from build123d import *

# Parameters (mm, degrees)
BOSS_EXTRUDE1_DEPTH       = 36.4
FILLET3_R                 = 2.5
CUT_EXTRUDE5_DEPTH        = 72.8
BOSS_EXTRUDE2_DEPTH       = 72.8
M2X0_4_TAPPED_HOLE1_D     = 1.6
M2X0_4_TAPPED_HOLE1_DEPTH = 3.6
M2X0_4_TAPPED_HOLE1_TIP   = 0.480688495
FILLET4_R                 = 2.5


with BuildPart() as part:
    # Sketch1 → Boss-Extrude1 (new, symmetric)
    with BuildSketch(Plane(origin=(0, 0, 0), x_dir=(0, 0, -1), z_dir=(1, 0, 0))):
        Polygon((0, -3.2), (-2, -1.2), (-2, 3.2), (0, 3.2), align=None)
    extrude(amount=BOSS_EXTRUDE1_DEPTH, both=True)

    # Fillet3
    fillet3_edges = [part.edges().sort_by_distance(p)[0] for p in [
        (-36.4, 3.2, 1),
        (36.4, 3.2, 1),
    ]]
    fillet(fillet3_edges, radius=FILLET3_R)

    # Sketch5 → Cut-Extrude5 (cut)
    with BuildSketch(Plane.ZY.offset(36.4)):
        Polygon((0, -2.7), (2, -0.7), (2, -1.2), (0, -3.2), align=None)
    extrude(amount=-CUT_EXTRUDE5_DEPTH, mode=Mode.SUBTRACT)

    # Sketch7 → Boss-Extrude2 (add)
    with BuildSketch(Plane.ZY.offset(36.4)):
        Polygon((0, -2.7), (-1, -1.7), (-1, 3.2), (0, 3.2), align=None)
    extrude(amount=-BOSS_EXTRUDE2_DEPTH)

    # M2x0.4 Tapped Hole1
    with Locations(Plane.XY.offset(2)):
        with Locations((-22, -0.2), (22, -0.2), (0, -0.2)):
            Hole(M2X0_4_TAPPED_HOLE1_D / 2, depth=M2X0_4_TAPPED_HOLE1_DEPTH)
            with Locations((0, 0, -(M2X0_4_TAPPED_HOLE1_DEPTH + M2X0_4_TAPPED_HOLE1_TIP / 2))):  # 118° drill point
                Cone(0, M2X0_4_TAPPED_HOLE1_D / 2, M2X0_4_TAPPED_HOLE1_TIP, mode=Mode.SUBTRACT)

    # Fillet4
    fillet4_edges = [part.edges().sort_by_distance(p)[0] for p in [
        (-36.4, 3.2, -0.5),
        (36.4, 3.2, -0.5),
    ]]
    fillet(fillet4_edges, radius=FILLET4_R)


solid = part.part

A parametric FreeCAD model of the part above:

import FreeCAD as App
import Part
import Sketcher

V = App.Vector
Q = App.Units.Quantity


def edges_at(feature, points):
    """Names of the edges that pass closest to the given points."""
    edges = feature.Shape.Edges
    near = lambda p: min(range(len(edges)), key=lambda i: edges[i].distToShape(Part.Vertex(*p))[0])
    return sorted({f"Edge{near(p) + 1}" for p in points})

doc = App.newDocument("Part")
body = doc.addObject("PartDesign::Body", "Body")

sketch1 = doc.addObject("Sketcher::SketchObject", "Sketch")
body.addObject(sketch1)
sketch1.AttachmentSupport = (doc.YZ_Plane, [""])
sketch1.MapMode = "FlatFace"
sketch1.addGeometry(Part.LineSegment(V(-1.2, 2, 0), V(-3.2, 0, 0)), False)
sketch1.addGeometry(Part.LineSegment(V(-3.2, 0, 0), V(3.2, 0, 0)), False)
sketch1.addGeometry(Part.LineSegment(V(3.2, 0, 0), V(3.2, 2, 0)), False)
sketch1.addGeometry(Part.LineSegment(V(3.2, 2, 0), V(-1.2, 2, 0)), False)
sketch1.addConstraint(Sketcher.Constraint("Coincident", 0, 2, 1, 1))
sketch1.addConstraint(Sketcher.Constraint("Coincident", 1, 2, 2, 1))
sketch1.addConstraint(Sketcher.Constraint("Coincident", 2, 2, 3, 1))
sketch1.addConstraint(Sketcher.Constraint("Coincident", 3, 2, 0, 1))
sketch1.addConstraint(Sketcher.Constraint("Horizontal", 1))
sketch1.addConstraint(Sketcher.Constraint("Vertical", 2))
sketch1.addConstraint(Sketcher.Constraint("Horizontal", 3))
sketch1.addConstraint(Sketcher.Constraint("Symmetric", 0, 2, 1, 2, -1, 1))
sketch1.addConstraint(Sketcher.Constraint("DistanceY", 2, 1, 2, 2, Q("2 mm")))
sketch1.addConstraint(Sketcher.Constraint("Angle", 0, Q("-135 deg")))
sketch1.addConstraint(Sketcher.Constraint("DistanceX", 1, 1, 1, 2, Q("6.4 mm")))
pad1 = doc.addObject("PartDesign::Pad", "Pad")
body.addObject(pad1)
pad1.Profile = sketch1
pad1.Length = 72.8
pad1.Midplane = True
doc.recompute()

fillet = doc.addObject("PartDesign::Fillet", "Fillet")
body.addObject(fillet)
fillet.Base = (pad1, edges_at(pad1, [(-36.4, 3.2, 1), (36.4, 3.2, 1)]))
fillet.Radius = 2.5

sketch2 = doc.addObject("Sketcher::SketchObject", "Sketch001")
body.addObject(sketch2)
sketch2.AttachmentSupport = (doc.YZ_Plane, [""])
sketch2.MapMode = "FlatFace"
sketch2.AttachmentOffset = App.Placement(V(0, 0, -36.4), App.Rotation())
sketch2.addGeometry(Part.LineSegment(V(-0.7, 2, 0), V(-2.7, 0, 0)), False)
sketch2.addGeometry(Part.LineSegment(V(-2.7, 0, 0), V(-3.2, 0, 0)), False)
sketch2.addGeometry(Part.LineSegment(V(-3.2, 0, 0), V(-1.2, 2, 0)), False)
sketch2.addGeometry(Part.LineSegment(V(-1.2, 2, 0), V(-0.7, 2, 0)), False)
sketch2.addConstraint(Sketcher.Constraint("Coincident", 0, 2, 1, 1))
sketch2.addConstraint(Sketcher.Constraint("Coincident", 1, 2, 2, 1))
sketch2.addConstraint(Sketcher.Constraint("Coincident", 2, 2, 3, 1))
sketch2.addConstraint(Sketcher.Constraint("Coincident", 3, 2, 0, 1))
sketch2.addConstraint(Sketcher.Constraint("Horizontal", 1))
sketch2.addConstraint(Sketcher.Constraint("Horizontal", 3))
sketch2.addConstraint(Sketcher.Constraint("PointOnObject", 0, 2, -1))
sketch2.addConstraint(Sketcher.Constraint("Parallel", 0, 2))
sketch2.addConstraint(Sketcher.Constraint("Angle", 0, Q("-135 deg")))
sketch2.addConstraint(Sketcher.Constraint("DistanceX", 1, 2, 1, 1, Q("0.5 mm")))
sketch2.addConstraint(Sketcher.Constraint("DistanceY", -1, 1, 2, 2, Q("2 mm")))
sketch2.addConstraint(Sketcher.Constraint("DistanceX", 0, 2, -1, 1, Q("2.7 mm")))
pocket1 = doc.addObject("PartDesign::Pocket", "Pocket")
body.addObject(pocket1)
pocket1.Profile = sketch2
pocket1.Length = 72.8
pocket1.Reversed = True

sketch3 = doc.addObject("Sketcher::SketchObject", "Sketch002")
body.addObject(sketch3)
sketch3.AttachmentSupport = (doc.YZ_Plane, [""])
sketch3.MapMode = "FlatFace"
sketch3.AttachmentOffset = App.Placement(V(0, 0, -36.4), App.Rotation())
sketch3.addGeometry(Part.LineSegment(V(-1.7, -1, 0), V(-2.7, 0, 0)), False)
sketch3.addGeometry(Part.LineSegment(V(-2.7, 0, 0), V(3.2, 0, 0)), False)
sketch3.addGeometry(Part.LineSegment(V(3.2, 0, 0), V(3.2, -1, 0)), False)
sketch3.addGeometry(Part.LineSegment(V(3.2, -1, 0), V(-1.7, -1, 0)), False)
sketch3.addConstraint(Sketcher.Constraint("Coincident", 0, 2, 1, 1))
sketch3.addConstraint(Sketcher.Constraint("Coincident", 1, 2, 2, 1))
sketch3.addConstraint(Sketcher.Constraint("Coincident", 2, 2, 3, 1))
sketch3.addConstraint(Sketcher.Constraint("Coincident", 3, 2, 0, 1))
sketch3.addConstraint(Sketcher.Constraint("Horizontal", 1))
sketch3.addConstraint(Sketcher.Constraint("Vertical", 2))
sketch3.addConstraint(Sketcher.Constraint("Horizontal", 3))
sketch3.addConstraint(Sketcher.Constraint("PointOnObject", 0, 2, -1))
sketch3.addConstraint(Sketcher.Constraint("DistanceY", 2, 2, 2, 1, Q("1 mm")))
sketch3.addConstraint(Sketcher.Constraint("Angle", 0, Q("135 deg")))
sketch3.addConstraint(Sketcher.Constraint("DistanceX", 1, 1, 1, 2, Q("5.9 mm")))
sketch3.addConstraint(Sketcher.Constraint("DistanceX", 0, 2, -1, 1, Q("2.7 mm")))
pad2 = doc.addObject("PartDesign::Pad", "Pad001")
body.addObject(pad2)
pad2.Profile = sketch3
pad2.Length = 72.8

sketch4 = doc.addObject("Sketcher::SketchObject", "Sketch003")
body.addObject(sketch4)
sketch4.AttachmentSupport = (doc.XY_Plane, [""])
sketch4.MapMode = "FlatFace"
sketch4.AttachmentOffset = App.Placement(V(0, 0, 2), App.Rotation())
sketch4.addGeometry(Part.Circle(V(-22, -0.2, 0), V(0, 0, 1), 0.8), False)
sketch4.addGeometry(Part.Circle(V(22, -0.2, 0), V(0, 0, 1), 0.8), False)
sketch4.addGeometry(Part.Circle(V(0, -0.2, 0), V(0, 0, 1), 0.8), False)
sketch4.addConstraint(Sketcher.Constraint("Equal", 0, 1))
sketch4.addConstraint(Sketcher.Constraint("Equal", 1, 2))
sketch4.addConstraint(Sketcher.Constraint("Symmetric", 0, 3, 1, 3, -2))
sketch4.addConstraint(Sketcher.Constraint("PointOnObject", 2, 3, -2))
sketch4.addConstraint(Sketcher.Constraint("Horizontal", 1, 3, 2, 3))
sketch4.addConstraint(Sketcher.Constraint("Diameter", 0, Q("1.6 mm")))
sketch4.addConstraint(Sketcher.Constraint("DistanceX", 0, 3, -1, 1, Q("22 mm")))
sketch4.addConstraint(Sketcher.Constraint("DistanceY", 0, 3, -1, 1, Q("0.2 mm")))
doc.recompute()
hole = doc.addObject("PartDesign::Hole", "Hole")
body.addObject(hole)
hole.Profile = sketch4
hole.ThreadType = "None"
hole.Diameter = 1.6
hole.DepthType = "Dimension"
hole.Depth = 3.6
hole.DrillPoint = "Angled"
hole.DrillPointAngle = 118
doc.recompute()

fillet2 = doc.addObject("PartDesign::Fillet", "Fillet001")
body.addObject(fillet2)
fillet2.Base = (hole, edges_at(hole, [(-36.4, 3.2, -0.5), (36.4, 3.2, -0.5)]))
fillet2.Radius = 2.5

doc.recompute()
